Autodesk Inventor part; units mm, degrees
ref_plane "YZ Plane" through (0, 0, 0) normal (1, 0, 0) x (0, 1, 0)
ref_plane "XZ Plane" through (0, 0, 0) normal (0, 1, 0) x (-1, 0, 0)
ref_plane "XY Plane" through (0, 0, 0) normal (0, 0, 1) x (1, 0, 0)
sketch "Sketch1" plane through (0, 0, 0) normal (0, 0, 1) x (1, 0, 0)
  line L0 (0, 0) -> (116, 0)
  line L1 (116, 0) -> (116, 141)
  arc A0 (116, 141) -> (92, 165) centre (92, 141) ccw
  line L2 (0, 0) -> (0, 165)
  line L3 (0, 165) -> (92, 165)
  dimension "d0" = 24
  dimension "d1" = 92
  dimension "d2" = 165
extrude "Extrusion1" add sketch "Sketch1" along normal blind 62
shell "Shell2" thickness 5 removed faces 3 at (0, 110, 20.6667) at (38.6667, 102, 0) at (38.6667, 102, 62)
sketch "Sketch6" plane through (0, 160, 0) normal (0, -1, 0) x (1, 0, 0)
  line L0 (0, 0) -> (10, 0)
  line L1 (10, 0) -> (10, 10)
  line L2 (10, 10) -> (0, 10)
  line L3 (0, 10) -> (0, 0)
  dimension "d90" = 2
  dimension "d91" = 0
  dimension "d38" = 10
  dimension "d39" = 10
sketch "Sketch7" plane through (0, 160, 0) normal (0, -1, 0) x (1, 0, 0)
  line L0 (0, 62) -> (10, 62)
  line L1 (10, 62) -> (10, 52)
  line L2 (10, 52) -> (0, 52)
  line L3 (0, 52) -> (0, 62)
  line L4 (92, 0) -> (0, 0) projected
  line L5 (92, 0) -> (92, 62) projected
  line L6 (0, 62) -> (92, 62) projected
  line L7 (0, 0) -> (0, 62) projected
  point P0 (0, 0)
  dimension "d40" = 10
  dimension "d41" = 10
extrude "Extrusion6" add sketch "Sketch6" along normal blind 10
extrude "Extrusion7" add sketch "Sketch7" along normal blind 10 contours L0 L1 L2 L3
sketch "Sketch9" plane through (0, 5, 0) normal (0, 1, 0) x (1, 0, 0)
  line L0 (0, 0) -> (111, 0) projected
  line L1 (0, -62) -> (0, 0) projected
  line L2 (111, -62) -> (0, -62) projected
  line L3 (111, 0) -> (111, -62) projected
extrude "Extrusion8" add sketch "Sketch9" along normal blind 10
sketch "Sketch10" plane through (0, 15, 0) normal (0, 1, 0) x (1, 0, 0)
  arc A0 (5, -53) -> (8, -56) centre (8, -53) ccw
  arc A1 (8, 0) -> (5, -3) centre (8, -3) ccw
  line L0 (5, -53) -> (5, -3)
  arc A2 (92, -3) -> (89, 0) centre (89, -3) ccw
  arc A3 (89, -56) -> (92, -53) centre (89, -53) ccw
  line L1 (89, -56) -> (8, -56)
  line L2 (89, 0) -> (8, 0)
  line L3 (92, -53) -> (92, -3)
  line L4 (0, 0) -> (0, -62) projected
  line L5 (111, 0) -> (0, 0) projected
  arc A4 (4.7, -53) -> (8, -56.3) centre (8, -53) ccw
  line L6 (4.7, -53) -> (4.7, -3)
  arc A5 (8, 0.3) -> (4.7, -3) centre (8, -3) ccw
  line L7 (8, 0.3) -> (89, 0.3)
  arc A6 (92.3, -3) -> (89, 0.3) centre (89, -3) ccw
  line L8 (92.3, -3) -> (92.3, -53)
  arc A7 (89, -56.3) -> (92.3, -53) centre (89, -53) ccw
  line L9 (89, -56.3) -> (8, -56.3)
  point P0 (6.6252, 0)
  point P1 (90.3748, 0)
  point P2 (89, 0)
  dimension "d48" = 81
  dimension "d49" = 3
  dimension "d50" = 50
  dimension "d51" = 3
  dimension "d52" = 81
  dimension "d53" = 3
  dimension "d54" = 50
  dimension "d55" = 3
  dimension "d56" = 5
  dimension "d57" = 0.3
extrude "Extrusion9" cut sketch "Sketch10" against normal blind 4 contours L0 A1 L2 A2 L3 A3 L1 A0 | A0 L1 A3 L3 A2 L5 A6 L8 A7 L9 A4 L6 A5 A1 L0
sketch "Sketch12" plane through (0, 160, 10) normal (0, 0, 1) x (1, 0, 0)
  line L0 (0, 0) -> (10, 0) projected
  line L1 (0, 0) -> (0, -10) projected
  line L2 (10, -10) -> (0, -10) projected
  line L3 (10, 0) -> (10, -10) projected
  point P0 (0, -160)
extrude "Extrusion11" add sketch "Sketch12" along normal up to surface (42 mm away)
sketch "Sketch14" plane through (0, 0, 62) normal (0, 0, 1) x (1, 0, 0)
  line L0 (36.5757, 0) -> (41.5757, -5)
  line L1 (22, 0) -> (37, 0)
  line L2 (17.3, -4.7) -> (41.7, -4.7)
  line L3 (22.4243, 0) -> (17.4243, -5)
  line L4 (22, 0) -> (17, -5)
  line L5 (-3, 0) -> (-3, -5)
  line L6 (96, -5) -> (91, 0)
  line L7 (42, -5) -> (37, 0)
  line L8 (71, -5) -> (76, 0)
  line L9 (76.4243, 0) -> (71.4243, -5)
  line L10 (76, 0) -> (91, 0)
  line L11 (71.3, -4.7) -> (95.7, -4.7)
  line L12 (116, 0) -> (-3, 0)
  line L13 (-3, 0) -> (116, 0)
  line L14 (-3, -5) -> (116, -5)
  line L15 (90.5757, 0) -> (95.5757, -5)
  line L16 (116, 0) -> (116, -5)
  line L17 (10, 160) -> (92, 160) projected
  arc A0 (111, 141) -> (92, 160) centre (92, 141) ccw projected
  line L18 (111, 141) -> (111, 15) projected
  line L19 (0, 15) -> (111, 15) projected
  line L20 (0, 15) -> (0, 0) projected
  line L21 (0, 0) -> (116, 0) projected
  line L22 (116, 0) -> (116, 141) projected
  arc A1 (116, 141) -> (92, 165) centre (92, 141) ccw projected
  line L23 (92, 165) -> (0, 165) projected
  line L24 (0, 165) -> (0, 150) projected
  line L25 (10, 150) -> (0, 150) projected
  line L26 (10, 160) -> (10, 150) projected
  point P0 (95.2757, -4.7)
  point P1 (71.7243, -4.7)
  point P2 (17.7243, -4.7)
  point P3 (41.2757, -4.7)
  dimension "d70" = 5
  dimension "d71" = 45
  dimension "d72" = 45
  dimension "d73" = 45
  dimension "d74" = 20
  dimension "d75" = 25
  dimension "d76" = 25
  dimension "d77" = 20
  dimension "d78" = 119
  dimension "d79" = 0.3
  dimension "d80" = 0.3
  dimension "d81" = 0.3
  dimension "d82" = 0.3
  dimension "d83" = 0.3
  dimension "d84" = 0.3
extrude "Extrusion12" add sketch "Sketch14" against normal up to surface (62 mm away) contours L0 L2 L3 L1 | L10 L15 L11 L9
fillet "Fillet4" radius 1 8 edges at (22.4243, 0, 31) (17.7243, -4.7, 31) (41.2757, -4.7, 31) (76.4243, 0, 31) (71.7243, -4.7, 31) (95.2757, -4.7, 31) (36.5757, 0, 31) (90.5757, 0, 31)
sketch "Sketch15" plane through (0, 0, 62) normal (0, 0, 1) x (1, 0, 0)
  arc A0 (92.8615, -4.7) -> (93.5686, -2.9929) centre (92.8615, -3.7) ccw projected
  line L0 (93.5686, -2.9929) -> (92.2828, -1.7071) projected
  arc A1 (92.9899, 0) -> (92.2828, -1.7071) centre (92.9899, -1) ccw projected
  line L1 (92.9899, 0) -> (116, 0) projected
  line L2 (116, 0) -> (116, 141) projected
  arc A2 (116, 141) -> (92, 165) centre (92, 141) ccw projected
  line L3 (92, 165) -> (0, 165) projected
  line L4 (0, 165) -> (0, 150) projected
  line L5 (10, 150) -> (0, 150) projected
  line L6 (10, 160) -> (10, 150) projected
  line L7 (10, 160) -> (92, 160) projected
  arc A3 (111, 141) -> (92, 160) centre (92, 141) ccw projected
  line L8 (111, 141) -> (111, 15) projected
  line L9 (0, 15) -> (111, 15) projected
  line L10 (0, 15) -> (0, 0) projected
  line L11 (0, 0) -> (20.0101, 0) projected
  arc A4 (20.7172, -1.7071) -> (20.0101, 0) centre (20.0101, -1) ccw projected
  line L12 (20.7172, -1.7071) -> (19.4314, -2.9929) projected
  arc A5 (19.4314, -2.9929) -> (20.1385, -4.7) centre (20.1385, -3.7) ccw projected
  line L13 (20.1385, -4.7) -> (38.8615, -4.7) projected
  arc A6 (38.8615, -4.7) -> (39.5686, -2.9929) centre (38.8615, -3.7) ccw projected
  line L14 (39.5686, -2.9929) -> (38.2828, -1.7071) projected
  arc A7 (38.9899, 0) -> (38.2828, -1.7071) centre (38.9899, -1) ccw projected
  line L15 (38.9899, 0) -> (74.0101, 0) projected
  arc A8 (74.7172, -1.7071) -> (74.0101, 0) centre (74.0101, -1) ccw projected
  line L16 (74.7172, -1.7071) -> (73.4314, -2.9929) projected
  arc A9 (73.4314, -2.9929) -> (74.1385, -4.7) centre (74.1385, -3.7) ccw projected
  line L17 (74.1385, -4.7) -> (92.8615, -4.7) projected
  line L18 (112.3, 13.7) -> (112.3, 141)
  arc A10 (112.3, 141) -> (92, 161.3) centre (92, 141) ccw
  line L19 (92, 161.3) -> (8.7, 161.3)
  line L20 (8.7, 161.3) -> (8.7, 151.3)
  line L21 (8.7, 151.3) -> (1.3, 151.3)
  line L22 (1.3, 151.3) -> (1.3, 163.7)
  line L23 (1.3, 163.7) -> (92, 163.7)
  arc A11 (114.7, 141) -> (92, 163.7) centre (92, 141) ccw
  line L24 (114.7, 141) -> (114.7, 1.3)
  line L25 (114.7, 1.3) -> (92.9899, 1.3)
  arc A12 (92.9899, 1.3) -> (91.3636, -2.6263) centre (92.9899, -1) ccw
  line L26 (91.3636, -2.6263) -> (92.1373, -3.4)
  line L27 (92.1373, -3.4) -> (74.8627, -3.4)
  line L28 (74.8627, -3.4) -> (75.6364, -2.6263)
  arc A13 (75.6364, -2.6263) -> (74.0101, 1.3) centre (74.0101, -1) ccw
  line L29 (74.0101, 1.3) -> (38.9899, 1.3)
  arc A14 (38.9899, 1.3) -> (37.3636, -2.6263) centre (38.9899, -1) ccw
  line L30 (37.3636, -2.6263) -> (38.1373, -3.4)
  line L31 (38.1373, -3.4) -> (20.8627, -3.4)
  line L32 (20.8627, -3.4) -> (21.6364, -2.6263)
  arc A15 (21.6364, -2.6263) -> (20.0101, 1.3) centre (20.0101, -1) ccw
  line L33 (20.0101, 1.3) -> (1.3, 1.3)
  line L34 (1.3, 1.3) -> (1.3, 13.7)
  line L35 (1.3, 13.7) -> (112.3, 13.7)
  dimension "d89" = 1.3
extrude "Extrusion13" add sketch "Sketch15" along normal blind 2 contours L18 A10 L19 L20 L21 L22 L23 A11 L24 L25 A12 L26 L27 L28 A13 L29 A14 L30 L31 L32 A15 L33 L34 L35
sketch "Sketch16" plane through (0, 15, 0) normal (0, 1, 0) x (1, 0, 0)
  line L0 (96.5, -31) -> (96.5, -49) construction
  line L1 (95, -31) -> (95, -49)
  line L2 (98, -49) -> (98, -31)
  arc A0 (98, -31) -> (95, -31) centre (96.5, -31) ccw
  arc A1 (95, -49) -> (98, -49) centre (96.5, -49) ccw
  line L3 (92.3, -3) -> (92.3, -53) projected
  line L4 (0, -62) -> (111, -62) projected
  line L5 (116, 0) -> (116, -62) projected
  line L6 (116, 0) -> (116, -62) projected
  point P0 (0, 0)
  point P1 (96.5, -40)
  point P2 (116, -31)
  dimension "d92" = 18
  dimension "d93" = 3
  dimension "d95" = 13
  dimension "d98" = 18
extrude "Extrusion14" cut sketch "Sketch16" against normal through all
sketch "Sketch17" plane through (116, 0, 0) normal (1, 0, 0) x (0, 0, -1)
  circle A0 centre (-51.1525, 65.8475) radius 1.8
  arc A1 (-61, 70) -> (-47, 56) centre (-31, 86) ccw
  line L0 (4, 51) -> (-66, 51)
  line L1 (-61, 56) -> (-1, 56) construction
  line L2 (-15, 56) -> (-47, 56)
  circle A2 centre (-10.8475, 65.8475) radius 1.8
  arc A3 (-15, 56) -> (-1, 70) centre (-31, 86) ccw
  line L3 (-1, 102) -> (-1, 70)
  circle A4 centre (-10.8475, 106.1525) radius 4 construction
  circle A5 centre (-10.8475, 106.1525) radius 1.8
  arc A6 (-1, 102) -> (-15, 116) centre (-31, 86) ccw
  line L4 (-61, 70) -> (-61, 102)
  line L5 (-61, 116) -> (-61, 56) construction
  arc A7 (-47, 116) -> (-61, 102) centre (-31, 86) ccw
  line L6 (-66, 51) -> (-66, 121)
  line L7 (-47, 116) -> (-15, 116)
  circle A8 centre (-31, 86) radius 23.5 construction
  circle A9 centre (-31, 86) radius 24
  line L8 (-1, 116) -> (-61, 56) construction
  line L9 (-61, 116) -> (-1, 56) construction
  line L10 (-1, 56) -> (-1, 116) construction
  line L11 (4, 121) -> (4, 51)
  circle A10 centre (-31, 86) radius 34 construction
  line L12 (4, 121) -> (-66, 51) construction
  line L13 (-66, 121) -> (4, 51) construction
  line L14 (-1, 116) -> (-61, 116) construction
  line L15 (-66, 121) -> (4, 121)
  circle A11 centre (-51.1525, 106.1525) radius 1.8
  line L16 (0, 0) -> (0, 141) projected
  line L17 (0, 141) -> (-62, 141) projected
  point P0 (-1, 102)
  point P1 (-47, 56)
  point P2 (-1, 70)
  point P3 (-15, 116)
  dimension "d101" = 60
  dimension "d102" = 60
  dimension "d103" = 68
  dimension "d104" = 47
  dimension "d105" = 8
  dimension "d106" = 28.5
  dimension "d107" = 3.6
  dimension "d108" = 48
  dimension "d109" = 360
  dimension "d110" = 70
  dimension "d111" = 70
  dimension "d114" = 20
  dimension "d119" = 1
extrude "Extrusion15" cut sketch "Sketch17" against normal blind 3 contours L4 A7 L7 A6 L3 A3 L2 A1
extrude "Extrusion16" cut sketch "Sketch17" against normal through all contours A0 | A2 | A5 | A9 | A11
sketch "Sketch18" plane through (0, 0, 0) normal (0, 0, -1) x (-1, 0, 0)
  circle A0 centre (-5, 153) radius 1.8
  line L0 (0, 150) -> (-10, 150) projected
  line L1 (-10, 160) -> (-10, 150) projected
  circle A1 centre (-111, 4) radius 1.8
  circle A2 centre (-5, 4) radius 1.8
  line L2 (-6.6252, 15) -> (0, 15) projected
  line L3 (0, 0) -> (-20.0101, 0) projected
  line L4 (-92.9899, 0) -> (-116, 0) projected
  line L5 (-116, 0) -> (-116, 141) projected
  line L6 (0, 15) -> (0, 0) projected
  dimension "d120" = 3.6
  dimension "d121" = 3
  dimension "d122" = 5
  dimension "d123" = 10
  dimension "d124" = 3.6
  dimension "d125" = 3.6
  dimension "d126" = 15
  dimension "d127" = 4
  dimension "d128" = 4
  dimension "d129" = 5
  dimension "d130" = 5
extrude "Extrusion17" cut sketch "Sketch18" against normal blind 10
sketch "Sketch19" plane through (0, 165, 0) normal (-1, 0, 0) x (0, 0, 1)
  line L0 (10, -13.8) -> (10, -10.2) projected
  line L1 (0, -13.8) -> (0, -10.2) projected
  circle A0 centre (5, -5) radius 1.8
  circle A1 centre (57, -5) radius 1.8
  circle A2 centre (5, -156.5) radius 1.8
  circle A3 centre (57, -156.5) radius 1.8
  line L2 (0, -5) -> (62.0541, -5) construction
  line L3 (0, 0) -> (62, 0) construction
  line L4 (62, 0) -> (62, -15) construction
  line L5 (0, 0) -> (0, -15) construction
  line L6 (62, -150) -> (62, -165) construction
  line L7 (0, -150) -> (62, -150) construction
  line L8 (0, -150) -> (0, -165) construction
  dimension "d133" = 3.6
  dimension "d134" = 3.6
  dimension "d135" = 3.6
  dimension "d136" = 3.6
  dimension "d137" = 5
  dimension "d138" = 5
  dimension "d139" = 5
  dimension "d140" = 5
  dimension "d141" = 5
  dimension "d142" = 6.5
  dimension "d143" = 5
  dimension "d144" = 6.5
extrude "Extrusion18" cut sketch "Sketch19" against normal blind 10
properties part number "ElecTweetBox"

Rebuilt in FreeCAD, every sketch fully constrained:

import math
import FreeCAD as App
import Part
import Sketcher

V = App.Vector
Q = App.Units.Quantity


def edges_at(feature, points):
    """Names of the edges that pass closest to the given points."""
    edges = feature.Shape.Edges
    near = lambda p: min(range(len(edges)), key=lambda i: edges[i].distToShape(Part.Vertex(*p))[0])
    return sorted({f"Edge{near(p) + 1}" for p in points})


def faces_at(feature, points):
    """Names of the faces that lie closest to the given points."""
    faces = feature.Shape.Faces
    near = lambda p: min(range(len(faces)), key=lambda i: faces[i].distToShape(Part.Vertex(*p))[0])
    return sorted({f"Face{near(p) + 1}" for p in points})


def add_polygon(sketch, points):
    """Adds a closed chain of lines whose ends are joined by coincident constraints."""
    first, n = sketch.GeometryCount, len(points)
    for a, b in zip(points, points[1:] + points[:1]):
        sketch.addGeometry(Part.LineSegment(App.Vector(*a, 0), App.Vector(*b, 0)), False)
    for i in range(n):
        sketch.addConstraint(Sketcher.Constraint("Coincident", first + i, 2, first + (i + 1) % n, 1))

doc = App.newDocument("Part")
params = doc.addObject("Spreadsheet::Sheet", "Params")
for row, (alias, value) in enumerate([
    ("sketch1_radius", "24 mm"),
    ("sketch1_width", "92 mm"),
    ("sketch1_height", "165 mm"),
    ("pad1_length", "62 mm"),
    ("thickness_wall", "5 mm"),
    ("sketch2_width", "10 mm"),
    ("pad2_length", "10 mm"),
    ("sketch3_width", "10 mm"),
    ("pad3_length", "10 mm"),
    ("sketch4_width", "111 mm"),
    ("sketch4_height", "62 mm"),
    ("pad4_length", "10 mm"),
    ("sketch5_width", "81 mm"),
    ("sketch5_height", "50 mm"),
    ("sketch5_radius", "3.3 mm"),
    ("pocket1_length", "4 mm"),
    ("sketch6_width", "10 mm"),
    ("pad5_length", "42 mm"),
    ("pad6_length", "62 mm"),
    ("fillet_radius", "1 mm"),
    ("sketch8_radius", "2.3 mm"),
    ("sketch8_radius2", "22.7 mm"),
    ("sketch8_radius3", "20.3 mm"),
    ("sketch8_width", "111 mm"),
    ("sketch8_height", "10 mm"),
    ("pad7_length", "2 mm"),
    ("sketch9_radius", "1.5 mm"),
    ("sketch9_height", "18 mm"),
    ("sketch10_diameter", "48 mm"),
    ("sketch10_radius", "34 mm"),
    ("sketch10_diameter2", "3.6 mm"),
    ("pocket3_length", "3 mm"),
    ("sketch11_diameter", "48 mm"),
    ("sketch11_diameter2", "3.6 mm"),
    ("sketch12_diameter", "3.6 mm"),
    ("pocket5_length", "10 mm"),
    ("sketch13_diameter", "3.6 mm"),
    ("pocket6_length", "10 mm"),
], start=1):
    params.set(f"A{row}", alias)
    params.set(f"B{row}", "=" + value)
    params.setAlias(f"B{row}", alias)

body = doc.addObject("PartDesign::Body", "Body")

# Sketch on XY plane
sketch1 = doc.addObject("Sketcher::SketchObject", "Sketch")
body.addObject(sketch1)
sketch1.AttachmentSupport = (doc.XY_Plane, [""])
sketch1.MapMode = "FlatFace"
sketch1.addGeometry(Part.LineSegment(V(0, 165, 0), V(0, 0, 0)), False)
sketch1.addGeometry(Part.LineSegment(V(0, 0, 0), V(116, 0, 0)), False)
sketch1.addGeometry(Part.LineSegment(V(116, 0, 0), V(116, 141, 0)), False)
sketch1.addGeometry(Part.ArcOfCircle(Part.Circle(V(92, 141, 0), V(0, 0, 1), 24), math.radians(0), math.radians(90)), False)
sketch1.addGeometry(Part.LineSegment(V(92, 165, 0), V(0, 165, 0)), False)
sketch1.addConstraint(Sketcher.Constraint("Coincident", 0, 2, 1, 1))
sketch1.addConstraint(Sketcher.Constraint("Coincident", 1, 2, 2, 1))
sketch1.addConstraint(Sketcher.Constraint("Tangent", 2, 2, 3, 1))
sketch1.addConstraint(Sketcher.Constraint("Tangent", 3, 2, 4, 1))
sketch1.addConstraint(Sketcher.Constraint("Coincident", 4, 2, 0, 1))
sketch1.addConstraint(Sketcher.Constraint("Vertical", 0))
sketch1.addConstraint(Sketcher.Constraint("Horizontal", 1))
sketch1.addConstraint(Sketcher.Constraint("Vertical", 2))
sketch1.addConstraint(Sketcher.Constraint("Horizontal", 4))
sketch1.addConstraint(Sketcher.Constraint("Coincident", 0, 2, -1, 1))
sketch1.addConstraint(Sketcher.Constraint("Radius", 3, Q("24 mm")))
sketch1.addConstraint(Sketcher.Constraint("DistanceX", 4, 2, 4, 1, Q("92 mm")))
sketch1.addConstraint(Sketcher.Constraint("DistanceY", 0, 2, 0, 1, Q("165 mm")))
sketch1.setExpression("Constraints[10]", "Params.sketch1_radius")
sketch1.setExpression("Constraints[11]", "Params.sketch1_width")
sketch1.setExpression("Constraints[12]", "Params.sketch1_height")
pad1 = doc.addObject("PartDesign::Pad", "Pad")
body.addObject(pad1)
pad1.Profile = sketch1
pad1.setExpression("Length", "Params.pad1_length")
doc.recompute()

thickness = doc.addObject("PartDesign::Thickness", "Thickness")
body.addObject(thickness)
thickness.Base = (pad1, faces_at(pad1, [(0, 110, 20.667), (38.667, 102, 0), (38.667, 102, 62)]))
thickness.setExpression("Value", "Params.thickness_wall")
thickness.Reversed = True
thickness.Join = "Intersection"

# Sketch on XZ plane
sketch2 = doc.addObject("Sketcher::SketchObject", "Sketch001")
body.addObject(sketch2)
sketch2.AttachmentSupport = (doc.XZ_Plane, [""])
sketch2.MapMode = "FlatFace"
sketch2.AttachmentOffset = App.Placement(V(0, 0, -160), App.Rotation())
add_polygon(sketch2, [(0, 10), (0, 0), (10, 0), (10, 10)])  # lines 0-3
sketch2.addConstraint(Sketcher.Constraint("Vertical", 0))
sketch2.addConstraint(Sketcher.Constraint("Horizontal", 1))
sketch2.addConstraint(Sketcher.Constraint("Vertical", 2))
sketch2.addConstraint(Sketcher.Constraint("Horizontal", 3))
sketch2.addConstraint(Sketcher.Constraint("Coincident", 0, 2, -1, 1))
sketch2.addConstraint(Sketcher.Constraint("Equal", 3, 0))
sketch2.addConstraint(Sketcher.Constraint("DistanceX", 1, 1, 1, 2, Q("10 mm")))
sketch2.setExpression("Constraints[10]", "Params.sketch2_width")
pad2 = doc.addObject("PartDesign::Pad", "Pad001")
body.addObject(pad2)
pad2.Profile = sketch2
pad2.setExpression("Length", "Params.pad2_length")

# Sketch on XZ plane
sketch3 = doc.addObject("Sketcher::SketchObject", "Sketch002")
body.addObject(sketch3)
sketch3.AttachmentSupport = (doc.XZ_Plane, [""])
sketch3.MapMode = "FlatFace"
sketch3.AttachmentOffset = App.Placement(V(0, 0, -160), App.Rotation())
add_polygon(sketch3, [(10, 62), (0, 62), (0, 52), (10, 52)])  # lines 0-3
sketch3.addConstraint(Sketcher.Constraint("Horizontal", 0))
sketch3.addConstraint(Sketcher.Constraint("Vertical", 1))
sketch3.addConstraint(Sketcher.Constraint("Horizontal", 2))
sketch3.addConstraint(Sketcher.Constraint("Vertical", 3))
sketch3.addConstraint(Sketcher.Constraint("PointOnObject", 0, 2, -2))
sketch3.addConstraint(Sketcher.Constraint("Equal", 2, 1))
sketch3.addConstraint(Sketcher.Constraint("DistanceX", 0, 2, 0, 1, Q("10 mm")))
sketch3.addConstraint(Sketcher.Constraint("DistanceY", -1, 1, 0, 2, Q("62 mm")))
sketch3.setExpression("Constraints[10]", "Params.sketch3_width")
pad3 = doc.addObject("PartDesign::Pad", "Pad002")
body.addObject(pad3)
pad3.Profile = sketch3
pad3.setExpression("Length", "Params.pad3_length")

# Sketch on XZ plane
sketch4 = doc.addObject("Sketcher::SketchObject", "Sketch003")
body.addObject(sketch4)
sketch4.AttachmentSupport = (doc.XZ_Plane, [""])
sketch4.MapMode = "FlatFace"
sketch4.AttachmentOffset = App.Placement(V(0, 0, -5), App.Rotation())
add_polygon(sketch4, [(111, 0), (0, 0), (0, 62), (111, 62)])  # lines 0-3
sketch4.addConstraint(Sketcher.Constraint("Horizontal", 0))
sketch4.addConstraint(Sketcher.Constraint("Vertical", 1))
sketch4.addConstraint(Sketcher.Constraint("Horizontal", 2))
sketch4.addConstraint(Sketcher.Constraint("Vertical", 3))
sketch4.addConstraint(Sketcher.Constraint("Coincident", 0, 2, -1, 1))
sketch4.addConstraint(Sketcher.Constraint("DistanceX", 0, 2, 0, 1, Q("111 mm")))
sketch4.addConstraint(Sketcher.Constraint("DistanceY", 1, 1, 1, 2, Q("62 mm")))
sketch4.setExpression("Constraints[9]", "Params.sketch4_width")
sketch4.setExpression("Constraints[10]", "Params.sketch4_height")
pad4 = doc.addObject("PartDesign::Pad", "Pad003")
body.addObject(pad4)
pad4.Profile = sketch4
pad4.setExpression("Length", "Params.pad4_length")
pad4.Reversed = True

# Sketch on XZ plane
sketch5 = doc.addObject("Sketcher::SketchObject", "Sketch004")
body.addObject(sketch5)
sketch5.AttachmentSupport = (doc.XZ_Plane, [""])
sketch5.MapMode = "FlatFace"
sketch5.AttachmentOffset = App.Placement(V(0, 0, -15), App.Rotation())
sketch5.addGeometry(Part.ArcOfCircle(Part.Circle(V(8, 3, 0), V(0, 0, 1), 3.3), math.radians(180), math.radians(245)), False)
sketch5.addGeometry(Part.LineSegment(V(4.7, 3, 0), V(4.7, 53, 0)), False)
sketch5.addGeometry(Part.ArcOfCircle(Part.Circle(V(8, 53, 0), V(0, 0, 1), 3.3), math.radians(90), math.radians(180)), False)
sketch5.addGeometry(Part.LineSegment(V(8, 56.3, 0), V(89, 56.3, 0)), False)
sketch5.addGeometry(Part.ArcOfCircle(Part.Circle(V(89, 53, 0), V(0, 0, 1), 3.3), math.radians(0), math.radians(90)), False)
sketch5.addGeometry(Part.LineSegment(V(92.3, 53, 0), V(92.3, 3, 0)), False)
sketch5.addGeometry(Part.ArcOfCircle(Part.Circle(V(89, 3, 0), V(0, 0, 1), 3.3), math.radians(-65), math.radians(0)), False)
sketch5.addGeometry(Part.LineSegment(V(90.4, 0, 0), V(6.6, 0, 0)), False)
sketch5.addConstraint(Sketcher.Constraint("Tangent", 0, 1, 1, 1))
sketch5.addConstraint(Sketcher.Constraint("Tangent", 1, 2, 2, 2))
sketch5.addConstraint(Sketcher.Constraint("Tangent", 2, 1, 3, 1))
sketch5.addConstraint(Sketcher.Constraint("Tangent", 3, 2, 4, 2))
sketch5.addConstraint(Sketcher.Constraint("Tangent", 4, 1, 5, 1))
sketch5.addConstraint(Sketcher.Constraint("Tangent", 5, 2, 6, 2))
sketch5.addConstraint(Sketcher.Constraint("Coincident", 6, 1, 7, 1))
sketch5.addConstraint(Sketcher.Constraint("Coincident", 7, 2, 0, 2))
sketch5.addConstraint(Sketcher.Constraint("Vertical", 1))
sketch5.addConstraint(Sketcher.Constraint("Horizontal", 3))
sketch5.addConstraint(Sketcher.Constraint("Vertical", 5))
sketch5.addConstraint(Sketcher.Constraint("Horizontal", 7))
sketch5.addConstraint(Sketcher.Constraint("Equal", 0, 2))
sketch5.addConstraint(Sketcher.Constraint("Equal", 2, 4))
sketch5.addConstraint(Sketcher.Constraint("Equal", 4, 6))
sketch5.addConstraint(Sketcher.Constraint("PointOnObject", 6, 1, -1))
sketch5.addConstraint(Sketcher.Constraint("Horizontal", 0, 3, 6, 3))
sketch5.addConstraint(Sketcher.Constraint("DistanceX", 3, 1, 3, 2, Q("81 mm")))
sketch5.addConstraint(Sketcher.Constraint("DistanceY", 1, 1, 1, 2, Q("50 mm")))
sketch5.addConstraint(Sketcher.Constraint("DistanceY", -1, 1, 0, 3, Q("3 mm")))
sketch5.addConstraint(Sketcher.Constraint("Radius", 0, Q("3.3 mm")))
sketch5.addConstraint(Sketcher.Constraint("DistanceX", -1, 1, 0, 3, Q("8 mm")))
sketch5.setExpression("Constraints[17]", "Params.sketch5_width")
sketch5.setExpression("Constraints[18]", "Params.sketch5_height")
sketch5.setExpression("Constraints[20]", "Params.sketch5_radius")
pocket1 = doc.addObject("PartDesign::Pocket", "Pocket")
body.addObject(pocket1)
pocket1.Profile = sketch5
pocket1.setExpression("Length", "Params.pocket1_length")
pocket1.Reversed = True

# Sketch on XY plane
sketch6 = doc.addObject("Sketcher::SketchObject", "Sketch005")
body.addObject(sketch6)
sketch6.AttachmentSupport = (doc.XY_Plane, [""])
sketch6.MapMode = "FlatFace"
sketch6.AttachmentOffset = App.Placement(V(0, 0, 10), App.Rotation())
add_polygon(sketch6, [(10, 160), (0, 160), (0, 150), (10, 150)])  # lines 0-3
sketch6.addConstraint(Sketcher.Constraint("Horizontal", 0))
sketch6.addConstraint(Sketcher.Constraint("Vertical", 1))
sketch6.addConstraint(Sketcher.Constraint("Horizontal", 2))
sketch6.addConstraint(Sketcher.Constraint("Vertical", 3))
sketch6.addConstraint(Sketcher.Constraint("PointOnObject", 0, 2, -2))
sketch6.addConstraint(Sketcher.Constraint("Equal", 2, 1))
sketch6.addConstraint(Sketcher.Constraint("DistanceX", 0, 2, 0, 1, Q("10 mm")))
sketch6.addConstraint(Sketcher.Constraint("DistanceY", -1, 1, 0, 2, Q("160 mm")))
sketch6.setExpression("Constraints[10]", "Params.sketch6_width")
pad5 = doc.addObject("PartDesign::Pad", "Pad004")
body.addObject(pad5)
pad5.Profile = sketch6
pad5.setExpression("Length", "Params.pad5_length")

# Sketch on XY plane
sketch7 = doc.addObject("Sketcher::SketchObject", "Sketch006")
body.addObject(sketch7)
sketch7.AttachmentSupport = (doc.XY_Plane, [""])
sketch7.MapMode = "FlatFace"
sketch7.AttachmentOffset = App.Placement(V(0, 0, 62), App.Rotation())
add_polygon(sketch7, [(41, -5), (37, 0), (22, 0), (18, -5)])  # lines 0-3
add_polygon(sketch7, [(91, 0), (76, 0), (72, -5), (95, -5)])  # lines 4-7
sketch7.addConstraint(Sketcher.Constraint("Horizontal", 1))
sketch7.addConstraint(Sketcher.Constraint("Horizontal", 3))
sketch7.addConstraint(Sketcher.Constraint("Horizontal", 4))
sketch7.addConstraint(Sketcher.Constraint("Horizontal", 6))
sketch7.addConstraint(Sketcher.Constraint("PointOnObject", 0, 2, -1))
sketch7.addConstraint(Sketcher.Constraint("PointOnObject", 4, 2, -1))
sketch7.addConstraint(Sketcher.Constraint("Perpendicular", 0, 2))
sketch7.addConstraint(Sketcher.Constraint("Parallel", 2, 5))
sketch7.addConstraint(Sketcher.Constraint("Perpendicular", 5, 7))
sketch7.addConstraint(Sketcher.Constraint("Horizontal", 3, 2, 5, 2))
sketch7.addConstraint(Sketcher.Constraint("Equal", 1, 4))
sketch7.addConstraint(Sketcher.Constraint("Equal", 0, 2))
sketch7.addConstraint(Sketcher.Constraint("DistanceX", 1, 2, 4, 2, Q("54 mm")))
sketch7.addConstraint(Sketcher.Constraint("DistanceY", 2, 2, -1, 1, Q("4.7 mm")))
sketch7.addConstraint(Sketcher.Constraint("DistanceX", 1, 2, 1, 1, Q("14.1514 mm")))
sketch7.addConstraint(Sketcher.Constraint("DistanceX", -1, 1, 0, 2, Q("36.5757 mm")))
pad6 = doc.addObject("PartDesign::Pad", "Pad005")
body.addObject(pad6)
pad6.Profile = sketch7
pad6.setExpression("Length", "Params.pad6_length")
pad6.Reversed = True
doc.recompute()

fillet = doc.addObject("PartDesign::Fillet", "Fillet")
body.addObject(fillet)
fillet.Base = (pad6, edges_at(pad6, [
    (22.424, 0, 31),
    (17.724, -4.7, 31),
    (41.276, -4.7, 31),
    (76.424, 0, 31),
    (71.724, -4.7, 31),
    (95.276, -4.7, 31),
    (36.576, 0, 31),
    (90.576, 0, 31),
]))
fillet.setExpression("Radius", "Params.fillet_radius")

# Sketch on XY plane
sketch8 = doc.addObject("Sketcher::SketchObject", "Sketch007")
body.addObject(sketch8)
sketch8.AttachmentSupport = (doc.XY_Plane, [""])
sketch8.MapMode = "FlatFace"
sketch8.AttachmentOffset = App.Placement(V(0, 0, 62), App.Rotation())
sketch8.addGeometry(Part.LineSegment(V(112.3, 141, 0), V(112.3, 13.7, 0)), False)
sketch8.addGeometry(Part.LineSegment(V(112.3, 13.7, 0), V(1.3, 13.7, 0)), False)
sketch8.addGeometry(Part.LineSegment(V(1.3, 13.7, 0), V(1.3, 1.3, 0)), False)
sketch8.addGeometry(Part.LineSegment(V(1.3, 1.3, 0), V(20, 1.3, 0)), False)
sketch8.addGeometry(Part.ArcOfCircle(Part.Circle(V(20, -1, 0), V(0, 0, 1), 2.3), math.radians(-45), math.radians(90)), False)
sketch8.addGeometry(Part.LineSegment(V(21.6, -2.6, 0), V(20.9, -3.4, 0)), False)
sketch8.addGeometry(Part.LineSegment(V(20.9, -3.4, 0), V(38.1, -3.4, 0)), False)
sketch8.addGeometry(Part.LineSegment(V(38.1, -3.4, 0), V(37.4, -2.6, 0)), False)
sketch8.addGeometry(Part.ArcOfCircle(Part.Circle(V(39, -1, 0), V(0, 0, 1), 2.3), math.radians(90), math.radians(225)), False)
sketch8.addGeometry(Part.LineSegment(V(39, 1.3, 0), V(74, 1.3, 0)), False)
sketch8.addGeometry(Part.ArcOfCircle(Part.Circle(V(74, -1, 0), V(0, 0, 1), 2.3), math.radians(-45), math.radians(90)), False)
sketch8.addGeometry(Part.LineSegment(V(75.6, -2.6, 0), V(74.9, -3.4, 0)), False)
sketch8.addGeometry(Part.LineSegment(V(74.9, -3.4, 0), V(92.1, -3.4, 0)), False)
sketch8.addGeometry(Part.LineSegment(V(92.1, -3.4, 0), V(91.4, -2.6, 0)), False)
sketch8.addGeometry(Part.ArcOfCircle(Part.Circle(V(93, -1, 0), V(0, 0, 1), 2.3), math.radians(90), math.radians(225)), False)
sketch8.addGeometry(Part.LineSegment(V(93, 1.3, 0), V(114.7, 1.3, 0)), False)
sketch8.addGeometry(Part.LineSegment(V(114.7, 1.3, 0), V(114.7, 141, 0)), False)
sketch8.addGeometry(Part.ArcOfCircle(Part.Circle(V(92, 141, 0), V(0, 0, 1), 22.7), math.radians(0), math.radians(90)), False)
sketch8.addGeometry(Part.LineSegment(V(92, 163.7, 0), V(1.3, 163.7, 0)), False)
sketch8.addGeometry(Part.LineSegment(V(1.3, 163.7, 0), V(1.3, 151.3, 0)), False)
sketch8.addGeometry(Part.LineSegment(V(1.3, 151.3, 0), V(8.7, 151.3, 0)), False)
sketch8.addGeometry(Part.LineSegment(V(8.7, 151.3, 0), V(8.7, 161.3, 0)), False)
sketch8.addGeometry(Part.LineSegment(V(8.7, 161.3, 0), V(92, 161.3, 0)), False)
sketch8.addGeometry(Part.ArcOfCircle(Part.Circle(V(92, 141, 0), V(0, 0, 1), 20.3), math.radians(0), math.radians(90)), False)
sketch8.addConstraint(Sketcher.Constraint("Coincident", 0, 2, 1, 1))
sketch8.addConstraint(Sketcher.Constraint("Coincident", 1, 2, 2, 1))
sketch8.addConstraint(Sketcher.Constraint("Coincident", 2, 2, 3, 1))
sketch8.addConstraint(Sketcher.Constraint("Tangent", 3, 2, 4, 2))
sketch8.addConstraint(Sketcher.Constraint("Tangent", 4, 1, 5, 1))
sketch8.addConstraint(Sketcher.Constraint("Coincident", 5, 2, 6, 1))
sketch8.addConstraint(Sketcher.Constraint("Coincident", 6, 2, 7, 1))
sketch8.addConstraint(Sketcher.Constraint("Tangent", 7, 2, 8, 2))
sketch8.addConstraint(Sketcher.Constraint("Tangent", 8, 1, 9, 1))
sketch8.addConstraint(Sketcher.Constraint("Tangent", 9, 2, 10, 2))
sketch8.addConstraint(Sketcher.Constraint("Tangent", 10, 1, 11, 1))
sketch8.addConstraint(Sketcher.Constraint("Coincident", 11, 2, 12, 1))
sketch8.addConstraint(Sketcher.Constraint("Coincident", 12, 2, 13, 1))
sketch8.addConstraint(Sketcher.Constraint("Tangent", 13, 2, 14, 2))
sketch8.addConstraint(Sketcher.Constraint("Tangent", 14, 1, 15, 1))
sketch8.addConstraint(Sketcher.Constraint("Coincident", 15, 2, 16, 1))
sketch8.addConstraint(Sketcher.Constraint("Tangent", 16, 2, 17, 1))
sketch8.addConstraint(Sketcher.Constraint("Tangent", 17, 2, 18, 1))
sketch8.addConstraint(Sketcher.Constraint("Coincident", 18, 2, 19, 1))
sketch8.addConstraint(Sketcher.Constraint("Coincident", 19, 2, 20, 1))
sketch8.addConstraint(Sketcher.Constraint("Coincident", 20, 2, 21, 1))
sketch8.addConstraint(Sketcher.Constraint("Coincident", 21, 2, 22, 1))
sketch8.addConstraint(Sketcher.Constraint("Tangent", 22, 2, 23, 2))
sketch8.addConstraint(Sketcher.Constraint("Tangent", 23, 1, 0, 1))
sketch8.addConstraint(Sketcher.Constraint("Vertical", 0))
sketch8.addConstraint(Sketcher.Constraint("Horizontal", 1))
sketch8.addConstraint(Sketcher.Constraint("Vertical", 2))
sketch8.addConstraint(Sketcher.Constraint("Horizontal", 3))
sketch8.addConstraint(Sketcher.Constraint("Horizontal", 6))
sketch8.addConstraint(Sketcher.Constraint("Horizontal", 9))
sketch8.addConstraint(Sketcher.Constraint("Horizontal", 12))
sketch8.addConstraint(Sketcher.Constraint("Horizontal", 15))
sketch8.addConstraint(Sketcher.Constraint("Vertical", 16))
sketch8.addConstraint(Sketcher.Constraint("Horizontal", 18))
sketch8.addConstraint(Sketcher.Constraint("Vertical", 19))
sketch8.addConstraint(Sketcher.Constraint("Horizontal", 20))
sketch8.addConstraint(Sketcher.Constraint("Vertical", 21))
sketch8.addConstraint(Sketcher.Constraint("Horizontal", 22))
sketch8.addConstraint(Sketcher.Constraint("Coincident", 23, 3, 17, 3))
sketch8.addConstraint(Sketcher.Constraint("Equal", 4, 8))
sketch8.addConstraint(Sketcher.Constraint("Equal", 8, 10))
sketch8.addConstraint(Sketcher.Constraint("Equal", 10, 14))
sketch8.addConstraint(Sketcher.Constraint("Perpendicular", 5, 7))
sketch8.addConstraint(Sketcher.Constraint("Perpendicular", 7, 11))
sketch8.addConstraint(Sketcher.Constraint("Perpendicular", 11, 13))
sketch8.addConstraint(Sketcher.Constraint("Horizontal", 4, 3, 8, 3))
sketch8.addConstraint(Sketcher.Constraint("Horizontal", 10, 3, 14, 3))
sketch8.addConstraint(Sketcher.Constraint("Horizontal", 4, 1, 7, 2))
sketch8.addConstraint(Sketcher.Constraint("Horizontal", 6, 2, 11, 2))
sketch8.addConstraint(Sketcher.Constraint("Vertical", 2, 2, 18, 2))
sketch8.addConstraint(Sketcher.Constraint("Equal", 6, 12))
sketch8.addConstraint(Sketcher.Constraint("Equal", 2, 19))
sketch8.addConstraint(Sketcher.Constraint("DistanceX", -1, 1, 1, 2, Q("1.3 mm")))
sketch8.addConstraint(Sketcher.Constraint("DistanceY", -1, 1, 2, 2, Q("1.3 mm")))
sketch8.addConstraint(Sketcher.Constraint("Radius", 4, Q("2.3 mm")))
sketch8.addConstraint(Sketcher.Constraint("Radius", 17, Q("22.7 mm")))
sketch8.addConstraint(Sketcher.Constraint("Radius", 23, Q("20.3 mm")))
sketch8.addConstraint(Sketcher.Constraint("DistanceX", 1, 2, 1, 1, Q("111 mm")))
sketch8.addConstraint(Sketcher.Constraint("DistanceY", 21, 1, 21, 2, Q("10 mm")))
sketch8.addConstraint(Sketcher.Constraint("DistanceX", 20, 1, 20, 2, Q("7.4 mm")))
sketch8.addConstraint(Sketcher.Constraint("DistanceY", 0, 2, 0, 1, Q("127.3 mm")))
sketch8.addConstraint(Sketcher.Constraint("DistanceX", 4, 3, 10, 3, Q("54 mm")))
sketch8.addConstraint(Sketcher.Constraint("DistanceX", 3, 1, 3, 2, Q("18.71 mm")))
sketch8.addConstraint(Sketcher.Constraint("DistanceX", 15, 1, 15, 2, Q("21.71 mm")))
sketch8.addConstraint(Sketcher.Constraint("DistanceY", 5, 2, -1, 1, Q("3.4 mm")))
sketch8.setExpression("Constraints[54]", "Params.sketch8_radius")
sketch8.setExpression("Constraints[55]", "Params.sketch8_radius2")
sketch8.setExpression("Constraints[56]", "Params.sketch8_radius3")
sketch8.setExpression("Constraints[57]", "Params.sketch8_width")
sketch8.setExpression("Constraints[58]", "Params.sketch8_height")
pad7 = doc.addObject("PartDesign::Pad", "Pad006")
body.addObject(pad7)
pad7.Profile = sketch8
pad7.setExpression("Length", "Params.pad7_length")

# Sketch on XZ plane
sketch9 = doc.addObject("Sketcher::SketchObject", "Sketch008")
body.addObject(sketch9)
sketch9.AttachmentSupport = (doc.XZ_Plane, [""])
sketch9.MapMode = "FlatFace"
sketch9.AttachmentOffset = App.Placement(V(0, 0, -15), App.Rotation())
sketch9.addGeometry(Part.ArcOfCircle(Part.Circle(V(96.5, 31, 0), V(0, 0, 1), 1.5), math.radians(180), math.radians(360)), False)
sketch9.addGeometry(Part.LineSegment(V(95, 31, 0), V(95, 49, 0)), False)
sketch9.addGeometry(Part.ArcOfCircle(Part.Circle(V(96.5, 49, 0), V(0, 0, 1), 1.5), math.radians(0), math.radians(180)), False)
sketch9.addGeometry(Part.LineSegment(V(98, 49, 0), V(98, 31, 0)), False)
sketch9.addConstraint(Sketcher.Constraint("Tangent", 0, 1, 1, 1))
sketch9.addConstraint(Sketcher.Constraint("Tangent", 1, 2, 2, 2))
sketch9.addConstraint(Sketcher.Constraint("Tangent", 2, 1, 3, 1))
sketch9.addConstraint(Sketcher.Constraint("Tangent", 3, 2, 0, 2))
sketch9.addConstraint(Sketcher.Constraint("Vertical", 1))
sketch9.addConstraint(Sketcher.Constraint("Vertical", 3))
sketch9.addConstraint(Sketcher.Constraint("Radius", 0, Q("1.5 mm")))
sketch9.addConstraint(Sketcher.Constraint("DistanceY", 1, 1, 1, 2, Q("18 mm")))
sketch9.addConstraint(Sketcher.Constraint("DistanceY", -1, 1, 0, 3, Q("31 mm")))
sketch9.addConstraint(Sketcher.Constraint("DistanceX", -1, 1, 0, 1, Q("95 mm")))
sketch9.setExpression("Constraints[6]", "Params.sketch9_radius")
sketch9.setExpression("Constraints[7]", "Params.sketch9_height")
pocket2 = doc.addObject("PartDesign::Pocket", "Pocket001")
body.addObject(pocket2)
pocket2.Profile = sketch9
pocket2.Type = "ThroughAll"
pocket2.Reversed = True

# Sketch on YZ plane
sketch10 = doc.addObject("Sketcher::SketchObject", "Sketch009")
body.addObject(sketch10)
sketch10.AttachmentSupport = (doc.YZ_Plane, [""])
sketch10.MapMode = "FlatFace"
sketch10.AttachmentOffset = App.Placement(V(0, 0, 116), App.Rotation())
sketch10.addGeometry(Part.LineSegment(V(102, 61, 0), V(70, 61, 0)), False)
sketch10.addGeometry(Part.ArcOfCircle(Part.Circle(V(86, 31, 0), V(0, 0, 1), 34), math.radians(118), math.radians(152)), False)
sketch10.addGeometry(Part.LineSegment(V(56, 47, 0), V(56, 15, 0)), False)
sketch10.addGeometry(Part.ArcOfCircle(Part.Circle(V(86, 31, 0), V(0, 0, 1), 34), math.radians(-152), math.radians(-118)), False)
sketch10.addGeometry(Part.LineSegment(V(70, 1, 0), V(102, 1, 0)), False)
sketch10.addGeometry(Part.ArcOfCircle(Part.Circle(V(86, 31, 0), V(0, 0, 1), 34), math.radians(-62), math.radians(-28)), False)
sketch10.addGeometry(Part.LineSegment(V(116, 15, 0), V(116, 47, 0)), False)
sketch10.addGeometry(Part.ArcOfCircle(Part.Circle(V(86, 31, 0), V(0, 0, 1), 34), math.radians(28), math.radians(62)), False)
sketch10.addGeometry(Part.Circle(V(65.8, 51.2, 0), V(0, 0, 1), 1.8), False)
sketch10.addGeometry(Part.Circle(V(65.8, 10.8, 0), V(0, 0, 1), 1.8), False)
sketch10.addGeometry(Part.Circle(V(106.2, 51.2, 0), V(0, 0, 1), 1.8), False)
sketch10.addGeometry(Part.Circle(V(86, 31, 0), V(0, 0, 1), 24), False)
sketch10.addGeometry(Part.Circle(V(106.2, 10.8, 0), V(0, 0, 1), 1.8), False)
sketch10.addConstraint(Sketcher.Constraint("Coincident", 0, 2, 1, 1))
sketch10.addConstraint(Sketcher.Constraint("Coincident", 1, 2, 2, 1))
sketch10.addConstraint(Sketcher.Constraint("Coincident", 2, 2, 3, 1))
sketch10.addConstraint(Sketcher.Constraint("Coincident", 3, 2, 4, 1))
sketch10.addConstraint(Sketcher.Constraint("Coincident", 4, 2, 5, 1))
sketch10.addConstraint(Sketcher.Constraint("Coincident", 5, 2, 6, 1))
sketch10.addConstraint(Sketcher.Constraint("Coincident", 6, 2, 7, 1))
sketch10.addConstraint(Sketcher.Constraint("Coincident", 7, 2, 0, 1))
sketch10.addConstraint(Sketcher.Constraint("Horizontal", 0))
sketch10.addConstraint(Sketcher.Constraint("Vertical", 2))
sketch10.addConstraint(Sketcher.Constraint("Horizontal", 4))
sketch10.addConstraint(Sketcher.Constraint("Vertical", 6))
sketch10.addConstraint(Sketcher.Constraint("Coincident", 3, 3, 1, 3))
sketch10.addConstraint(Sketcher.Constraint("Coincident", 5, 3, 1, 3))
sketch10.addConstraint(Sketcher.Constraint("Coincident", 7, 3, 1, 3))
sketch10.addConstraint(Sketcher.Constraint("Coincident", 11, 3, 1, 3))
sketch10.addConstraint(Sketcher.Constraint("Equal", 1, 3))
sketch10.addConstraint(Sketcher.Constraint("Equal", 3, 5))
sketch10.addConstraint(Sketcher.Constraint("Equal", 5, 7))
sketch10.addConstraint(Sketcher.Constraint("Equal", 8, 9))
sketch10.addConstraint(Sketcher.Constraint("Equal", 9, 10))
sketch10.addConstraint(Sketcher.Constraint("Equal", 10, 12))
sketch10.addConstraint(Sketcher.Constraint("Horizontal", 8, 3, 10, 3))
sketch10.addConstraint(Sketcher.Constraint("Horizontal", 9, 3, 12, 3))
sketch10.addConstraint(Sketcher.Constraint("Horizontal", 2, 2, 5, 2))
sketch10.addConstraint(Sketcher.Constraint("Vertical", 8, 3, 9, 3))
sketch10.addConstraint(Sketcher.Constraint("Vertical", 10, 3, 12, 3))
sketch10.addConstraint(Sketcher.Constraint("Vertical", 0, 2, 3, 2))
sketch10.addConstraint(Sketcher.Constraint("Equal", 4, 2))
sketch10.addConstraint(Sketcher.Constraint("Diameter", 11, Q("48 mm")))
sketch10.addConstraint(Sketcher.Constraint("Radius", 1, Q("34 mm")))
sketch10.addConstraint(Sketcher.Constraint("Diameter", 8, Q("3.6 mm")))
sketch10.addConstraint(Sketcher.Constraint("DistanceX", -1, 1, 0, 2, Q("70 mm")))
sketch10.addConstraint(Sketcher.Constraint("DistanceY", -1, 1, 1, 2, Q("47 mm")))
sketch10.addConstraint(Sketcher.Constraint("DistanceY", -1, 1, 3, 2, Q("1 mm")))
sketch10.addConstraint(Sketcher.Constraint("DistanceY", 9, 3, 8, 3, Q("40.305 mm")))
sketch10.addConstraint(Sketcher.Constraint("DistanceX", 8, 3, 10, 3, Q("40.305 mm")))
sketch10.addConstraint(Sketcher.Constraint("DistanceX", -1, 1, 8, 3, Q("65.8475 mm")))
sketch10.addConstraint(Sketcher.Constraint("DistanceY", -1, 1, 8, 3, Q("51.1525 mm")))
sketch10.setExpression("Constraints[29]", "Params.sketch10_diameter")
sketch10.setExpression("Constraints[30]", "Params.sketch10_radius")
sketch10.setExpression("Constraints[31]", "Params.sketch10_diameter2")
pocket3 = doc.addObject("PartDesign::Pocket", "Pocket002")
body.addObject(pocket3)
pocket3.Profile = sketch10
pocket3.setExpression("Length", "Params.pocket3_length")

# Sketch on YZ plane
sketch11 = doc.addObject("Sketcher::SketchObject", "Sketch010")
body.addObject(sketch11)
sketch11.AttachmentSupport = (doc.YZ_Plane, [""])
sketch11.MapMode = "FlatFace"
sketch11.AttachmentOffset = App.Placement(V(0, 0, 116), App.Rotation())
sketch11.addGeometry(Part.Circle(V(65.8, 51.2, 0), V(0, 0, 1), 1.8), False)
sketch11.addGeometry(Part.Circle(V(65.8, 10.8, 0), V(0, 0, 1), 1.8), False)
sketch11.addGeometry(Part.Circle(V(106.2, 10.8, 0), V(0, 0, 1), 1.8), False)
sketch11.addGeometry(Part.Circle(V(86, 31, 0), V(0, 0, 1), 24), False)
sketch11.addGeometry(Part.Circle(V(106.2, 51.2, 0), V(0, 0, 1), 1.8), False)
sketch11.addConstraint(Sketcher.Constraint("Equal", 0, 1))
sketch11.addConstraint(Sketcher.Constraint("Equal", 1, 2))
sketch11.addConstraint(Sketcher.Constraint("Equal", 2, 4))
sketch11.addConstraint(Sketcher.Constraint("Horizontal", 1, 3, 2, 3))
sketch11.addConstraint(Sketcher.Constraint("Horizontal", 0, 3, 4, 3))
sketch11.addConstraint(Sketcher.Constraint("Vertical", 0, 3, 1, 3))
sketch11.addConstraint(Sketcher.Constraint("Vertical", 2, 3, 4, 3))
sketch11.addConstraint(Sketcher.Constraint("Diameter", 3, Q("48 mm")))
sketch11.addConstraint(Sketcher.Constraint("Diameter", 0, Q("3.6 mm")))
sketch11.addConstraint(Sketcher.Constraint("DistanceX", -1, 1, 3, 3, Q("86 mm")))
sketch11.addConstraint(Sketcher.Constraint("DistanceY", -1, 1, 3, 3, Q("31 mm")))
sketch11.addConstraint(Sketcher.Constraint("DistanceY", 1, 3, 0, 3, Q("40.305 mm")))
sketch11.addConstraint(Sketcher.Constraint("DistanceX", 1, 3, 2, 3, Q("40.305 mm")))
sketch11.addConstraint(Sketcher.Constraint("DistanceX", -1, 1, 0, 3, Q("65.8475 mm")))
sketch11.addConstraint(Sketcher.Constraint("DistanceY", -1, 1, 0, 3, Q("51.1525 mm")))
sketch11.setExpression("Constraints[7]", "Params.sketch11_diameter")
sketch11.setExpression("Constraints[8]", "Params.sketch11_diameter2")
pocket4 = doc.addObject("PartDesign::Pocket", "Pocket003")
body.addObject(pocket4)
pocket4.Profile = sketch11
pocket4.Type = "ThroughAll"

# Sketch on XY plane
sketch12 = doc.addObject("Sketcher::SketchObject", "Sketch011")
body.addObject(sketch12)
sketch12.AttachmentSupport = (doc.XY_Plane, [""])
sketch12.MapMode = "FlatFace"
sketch12.addGeometry(Part.Circle(V(5, 153, 0), V(0, 0, 1), 1.8), False)
sketch12.addGeometry(Part.Circle(V(111, 4, 0), V(0, 0, 1), 1.8), False)
sketch12.addGeometry(Part.Circle(V(5, 4, 0), V(0, 0, 1), 1.8), False)
sketch12.addConstraint(Sketcher.Constraint("Equal", 0, 1))
sketch12.addConstraint(Sketcher.Constraint("Equal", 1, 2))
sketch12.addConstraint(Sketcher.Constraint("Horizontal", 1, 3, 2, 3))
sketch12.addConstraint(Sketcher.Constraint("Vertical", 0, 3, 2, 3))
sketch12.addConstraint(Sketcher.Constraint("Diameter", 0, Q("3.6 mm")))
sketch12.addConstraint(Sketcher.Constraint("DistanceX", -1, 1, 0, 3, Q("5 mm")))
sketch12.addConstraint(Sketcher.Constraint("DistanceY", -1, 1, 1, 3, Q("4 mm")))
sketch12.addConstraint(Sketcher.Constraint("DistanceY", -1, 1, 0, 3, Q("153 mm")))
sketch12.addConstraint(Sketcher.Constraint("DistanceX", -1, 1, 1, 3, Q("111 mm")))
sketch12.setExpression("Constraints[4]", "Params.sketch12_diameter")
pocket5 = doc.addObject("PartDesign::Pocket", "Pocket004")
body.addObject(pocket5)
pocket5.Profile = sketch12
pocket5.setExpression("Length", "Params.pocket5_length")
pocket5.Reversed = True

# Sketch on YZ plane
sketch13 = doc.addObject("Sketcher::SketchObject", "Sketch012")
body.addObject(sketch13)
sketch13.AttachmentSupport = (doc.YZ_Plane, [""])
sketch13.MapMode = "FlatFace"
sketch13.addGeometry(Part.Circle(V(160, 5, 0), V(0, 0, 1), 1.8), False)
sketch13.addGeometry(Part.Circle(V(160, 57, 0), V(0, 0, 1), 1.8), False)
sketch13.addGeometry(Part.Circle(V(8.5, 5, 0), V(0, 0, 1), 1.8), False)
sketch13.addGeometry(Part.Circle(V(8.5, 57, 0), V(0, 0, 1), 1.8), False)
sketch13.addConstraint(Sketcher.Constraint("Equal", 0, 1))
sketch13.addConstraint(Sketcher.Constraint("Equal", 1, 2))
sketch13.addConstraint(Sketcher.Constraint("Equal", 2, 3))
sketch13.addConstraint(Sketcher.Constraint("Horizontal", 0, 3, 2, 3))
sketch13.addConstraint(Sketcher.Constraint("Horizontal", 1, 3, 3, 3))
sketch13.addConstraint(Sketcher.Constraint("Vertical", 0, 3, 1, 3))
sketch13.addConstraint(Sketcher.Constraint("Vertical", 2, 3, 3, 3))
sketch13.addConstraint(Sketcher.Constraint("Diameter", 0, Q("3.6 mm")))
sketch13.addConstraint(Sketcher.Constraint("DistanceY", -1, 1, 0, 3, Q("5 mm")))
sketch13.addConstraint(Sketcher.Constraint("DistanceX", -1, 1, 0, 3, Q("160 mm")))
sketch13.addConstraint(Sketcher.Constraint("DistanceY", -1, 1, 1, 3, Q("57 mm")))
sketch13.addConstraint(Sketcher.Constraint("DistanceX", -1, 1, 2, 3, Q("8.5 mm")))
sketch13.setExpression("Constraints[7]", "Params.sketch13_diameter")
pocket6 = doc.addObject("PartDesign::Pocket", "Pocket005")
body.addObject(pocket6)
pocket6.Profile = sketch13
pocket6.setExpression("Length", "Params.pocket6_length")
pocket6.Reversed = True

doc.recompute()
